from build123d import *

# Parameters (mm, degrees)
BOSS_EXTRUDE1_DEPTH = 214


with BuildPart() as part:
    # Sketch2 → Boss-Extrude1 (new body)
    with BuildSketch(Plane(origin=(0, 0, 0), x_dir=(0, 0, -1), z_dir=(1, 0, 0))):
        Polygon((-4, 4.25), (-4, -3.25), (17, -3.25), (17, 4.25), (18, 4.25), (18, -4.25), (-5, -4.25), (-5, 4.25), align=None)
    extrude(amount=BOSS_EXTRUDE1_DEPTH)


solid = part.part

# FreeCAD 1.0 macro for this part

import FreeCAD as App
import Part
import Sketcher
from FreeCAD import Vector

doc = App.newDocument("Part")
body = doc.addObject("PartDesign::Body", "Body")

# Sketch on YZ plane
sketch1 = body.newObject("Sketcher::SketchObject", "Sketch")
sketch1.AttachmentSupport = (doc.getObject("YZ_Plane"), [""])
sketch1.MapMode = "FlatFace"
sketch1.addGeometry([
    Part.LineSegment(Vector(-3.2, 4, 0), Vector(4.2, 4, 0)),  # 0
    Part.LineSegment(Vector(4.2, 4, 0), Vector(4.2, 5, 0)),  # 1
    Part.LineSegment(Vector(4.2, 5, 0), Vector(-4.2, 5, 0)),  # 2
    Part.LineSegment(Vector(-4.2, 5, 0), Vector(-4.2, -18, 0)),  # 3
    Part.LineSegment(Vector(-4.2, -18, 0), Vector(4.2, -18, 0)),  # 4
    Part.LineSegment(Vector(4.2, -18, 0), Vector(4.2, -17, 0)),  # 5
    Part.LineSegment(Vector(4.2, -17, 0), Vector(-3.2, -17, 0)),  # 6
    Part.LineSegment(Vector(-3.2, -17, 0), Vector(-3.2, 4, 0)),  # 7
], False)
sketch1.addConstraint([
    Sketcher.Constraint("Coincident", 0, 2, 1, 1),
    Sketcher.Constraint("Coincident", 1, 2, 2, 1),
    Sketcher.Constraint("Coincident", 2, 2, 3, 1),
    Sketcher.Constraint("Coincident", 3, 2, 4, 1),
    Sketcher.Constraint("Coincident", 4, 2, 5, 1),
    Sketcher.Constraint("Coincident", 5, 2, 6, 1),
    Sketcher.Constraint("Coincident", 6, 2, 7, 1),
    Sketcher.Constraint("Coincident", 7, 2, 0, 1),
    Sketcher.Constraint("Horizontal", 0),
    Sketcher.Constraint("Vertical", 1),
    Sketcher.Constraint("Horizontal", 2),
    Sketcher.Constraint("Vertical", 3),
    Sketcher.Constraint("Horizontal", 4),
    Sketcher.Constraint("Vertical", 5),
    Sketcher.Constraint("Horizontal", 6),
    Sketcher.Constraint("Vertical", 7),
    Sketcher.Constraint("Vertical", 1, 2, 4, 2),
    Sketcher.Constraint("Equal", 1, 5),
    Sketcher.Constraint("DistanceY", 1, 1, 1, 2, 1.0),
    Sketcher.Constraint("DistanceY", 3, 2, 3, 1, 23.0),
    Sketcher.Constraint("DistanceX", 0, 1, 0, 2, 7.5),
    Sketcher.Constraint("DistanceX", 2, 2, 2, 1, 8.5),
    Sketcher.Constraint("DistanceY", -1, 1, 0, 2, 4.0),
    Sketcher.Constraint("DistanceX", -1, 1, 0, 2, 4.25),
])
pad1 = body.newObject("PartDesign::Pad", "Pad")
pad1.Profile = sketch1
pad1.Length = 214

doc.recompute()
